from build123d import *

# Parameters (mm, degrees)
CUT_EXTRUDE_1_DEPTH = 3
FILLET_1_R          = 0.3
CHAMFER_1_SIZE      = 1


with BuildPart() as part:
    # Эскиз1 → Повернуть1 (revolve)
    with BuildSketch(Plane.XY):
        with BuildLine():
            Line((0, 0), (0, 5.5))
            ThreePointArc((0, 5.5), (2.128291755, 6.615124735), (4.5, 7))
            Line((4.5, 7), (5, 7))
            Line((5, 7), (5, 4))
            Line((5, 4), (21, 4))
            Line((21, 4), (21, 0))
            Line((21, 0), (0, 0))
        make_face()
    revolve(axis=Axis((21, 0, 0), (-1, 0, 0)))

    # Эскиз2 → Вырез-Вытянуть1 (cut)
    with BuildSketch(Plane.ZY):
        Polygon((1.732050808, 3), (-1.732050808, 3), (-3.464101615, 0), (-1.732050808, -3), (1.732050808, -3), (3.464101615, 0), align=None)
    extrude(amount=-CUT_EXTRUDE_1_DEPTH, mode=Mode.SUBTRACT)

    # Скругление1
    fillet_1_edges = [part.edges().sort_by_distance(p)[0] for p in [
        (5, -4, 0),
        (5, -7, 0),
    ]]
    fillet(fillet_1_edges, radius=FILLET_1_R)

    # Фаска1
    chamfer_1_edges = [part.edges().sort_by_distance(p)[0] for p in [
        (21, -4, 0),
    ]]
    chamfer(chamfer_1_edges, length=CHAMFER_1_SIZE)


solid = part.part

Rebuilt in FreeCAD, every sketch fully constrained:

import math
import FreeCAD as App
import Part
import Sketcher

V = App.Vector
Q = App.Units.Quantity


def edges_at(feature, points):
    """Names of the edges that pass closest to the given points."""
    edges = feature.Shape.Edges
    near = lambda p: min(range(len(edges)), key=lambda i: edges[i].distToShape(Part.Vertex(*p))[0])
    return sorted({f"Edge{near(p) + 1}" for p in points})


def add_polygon(sketch, points):
    """Adds a closed chain of lines whose ends are joined by coincident constraints."""
    first, n = sketch.GeometryCount, len(points)
    for a, b in zip(points, points[1:] + points[:1]):
        sketch.addGeometry(Part.LineSegment(App.Vector(*a, 0), App.Vector(*b, 0)), False)
    for i in range(n):
        sketch.addConstraint(Sketcher.Constraint("Coincident", first + i, 2, first + (i + 1) % n, 1))

doc = App.newDocument("Part")
body = doc.addObject("PartDesign::Body", "Body")

# Sketch on XY plane
sketch1 = body.newObject("Sketcher::SketchObject", "Sketch")
sketch1.AttachmentSupport = (doc.getObject("XY_Plane"), [""])
sketch1.MapMode = "FlatFace"
sketch1.addGeometry(Part.LineSegment(V(0, 5.5, 0), V(0, 0, 0)), False)
sketch1.addGeometry(Part.LineSegment(V(0, 0, 0), V(21, 0, 0)), False)
sketch1.addGeometry(Part.LineSegment(V(21, 0, 0), V(21, 4, 0)), False)
sketch1.addGeometry(Part.LineSegment(V(21, 4, 0), V(5, 4, 0)), False)
sketch1.addGeometry(Part.LineSegment(V(5, 4, 0), V(5, 7, 0)), False)
sketch1.addGeometry(Part.LineSegment(V(5, 7, 0), V(4.5, 7, 0)), False)
sketch1.addGeometry(Part.ArcOfCircle(Part.Circle(V(4.5, -0.5, 0), V(0, 0, 1), 7.5), math.radians(90), math.radians(126.869898)), False)
sketch1.addConstraint(Sketcher.Constraint("Coincident", 0, 2, 1, 1))
sketch1.addConstraint(Sketcher.Constraint("Coincident", 1, 2, 2, 1))
sketch1.addConstraint(Sketcher.Constraint("Coincident", 2, 2, 3, 1))
sketch1.addConstraint(Sketcher.Constraint("Coincident", 3, 2, 4, 1))
sketch1.addConstraint(Sketcher.Constraint("Coincident", 4, 2, 5, 1))
sketch1.addConstraint(Sketcher.Constraint("Tangent", 5, 2, 6, 1))
sketch1.addConstraint(Sketcher.Constraint("Coincident", 6, 2, 0, 1))
sketch1.addConstraint(Sketcher.Constraint("Vertical", 0))
sketch1.addConstraint(Sketcher.Constraint("Horizontal", 1))
sketch1.addConstraint(Sketcher.Constraint("Vertical", 2))
sketch1.addConstraint(Sketcher.Constraint("Horizontal", 3))
sketch1.addConstraint(Sketcher.Constraint("Vertical", 4))
sketch1.addConstraint(Sketcher.Constraint("Horizontal", 5))
sketch1.addConstraint(Sketcher.Constraint("Coincident", 0, 2, -1, 1))
sketch1.addConstraint(Sketcher.Constraint("Radius", 6, 7.5))
sketch1.addConstraint(Sketcher.Constraint("DistanceX", 1, 1, 1, 2, 21.0))
sketch1.addConstraint(Sketcher.Constraint("DistanceX", 3, 2, 3, 1, 16.0))
sketch1.addConstraint(Sketcher.Constraint("DistanceY", 2, 1, 2, 2, 4.0))
sketch1.addConstraint(Sketcher.Constraint("DistanceY", 4, 1, 4, 2, 3.0))
sketch1.addConstraint(Sketcher.Constraint("DistanceX", 5, 2, 5, 1, 0.5))
revolution = body.newObject("PartDesign::Revolution", "Revolution")
revolution.Profile = sketch1
revolution.ReferenceAxis = (sketch1, ["H_Axis"])
revolution.Angle = 360

# Sketch on YZ plane
sketch2 = body.newObject("Sketcher::SketchObject", "Sketch001")
sketch2.AttachmentSupport = (doc.getObject("YZ_Plane"), [""])
sketch2.MapMode = "FlatFace"
add_polygon(sketch2, [(3, 1.732051), (3, -1.732051), (0, -3.464102), (-3, -1.732051), (-3, 1.732051), (0, 3.464102)])  # lines 0-5
sketch2.addConstraint(Sketcher.Constraint("Vertical", 0))
sketch2.addConstraint(Sketcher.Constraint("Vertical", 3))
sketch2.addConstraint(Sketcher.Constraint("Symmetric", 0, 2, 3, 2, -1, 1))
sketch2.addConstraint(Sketcher.Constraint("Symmetric", 1, 2, 4, 2, -1, 1))
sketch2.addConstraint(Sketcher.Constraint("PointOnObject", 1, 2, -2))
sketch2.addConstraint(Sketcher.Constraint("Parallel", 2, 5))
sketch2.addConstraint(Sketcher.Constraint("Horizontal", 0, 2, 2, 2))
sketch2.addConstraint(Sketcher.Constraint("Angle", 1, Q("-150 deg")))
sketch2.addConstraint(Sketcher.Constraint("DistanceX", -1, 1, 0, 2, 3.0))
sketch2.addConstraint(Sketcher.Constraint("DistanceY", 0, 2, 0, 1, 3.464102))
pocket1 = body.newObject("PartDesign::Pocket", "Pocket")
pocket1.Profile = sketch2
pocket1.Length = 3
pocket1.Reversed = True
doc.recompute()

fillet = body.newObject("PartDesign::Fillet", "Fillet")
fillet.Base = (pocket1, edges_at(pocket1, [(5, -4, 0), (5, -7, 0)]))
fillet.Radius = 0.3
doc.recompute()

chamfer = body.newObject("PartDesign::Chamfer", "Chamfer")
chamfer.Base = (fillet, edges_at(fillet, [(21, -4, 0)]))
chamfer.Size = 1

doc.recompute()
